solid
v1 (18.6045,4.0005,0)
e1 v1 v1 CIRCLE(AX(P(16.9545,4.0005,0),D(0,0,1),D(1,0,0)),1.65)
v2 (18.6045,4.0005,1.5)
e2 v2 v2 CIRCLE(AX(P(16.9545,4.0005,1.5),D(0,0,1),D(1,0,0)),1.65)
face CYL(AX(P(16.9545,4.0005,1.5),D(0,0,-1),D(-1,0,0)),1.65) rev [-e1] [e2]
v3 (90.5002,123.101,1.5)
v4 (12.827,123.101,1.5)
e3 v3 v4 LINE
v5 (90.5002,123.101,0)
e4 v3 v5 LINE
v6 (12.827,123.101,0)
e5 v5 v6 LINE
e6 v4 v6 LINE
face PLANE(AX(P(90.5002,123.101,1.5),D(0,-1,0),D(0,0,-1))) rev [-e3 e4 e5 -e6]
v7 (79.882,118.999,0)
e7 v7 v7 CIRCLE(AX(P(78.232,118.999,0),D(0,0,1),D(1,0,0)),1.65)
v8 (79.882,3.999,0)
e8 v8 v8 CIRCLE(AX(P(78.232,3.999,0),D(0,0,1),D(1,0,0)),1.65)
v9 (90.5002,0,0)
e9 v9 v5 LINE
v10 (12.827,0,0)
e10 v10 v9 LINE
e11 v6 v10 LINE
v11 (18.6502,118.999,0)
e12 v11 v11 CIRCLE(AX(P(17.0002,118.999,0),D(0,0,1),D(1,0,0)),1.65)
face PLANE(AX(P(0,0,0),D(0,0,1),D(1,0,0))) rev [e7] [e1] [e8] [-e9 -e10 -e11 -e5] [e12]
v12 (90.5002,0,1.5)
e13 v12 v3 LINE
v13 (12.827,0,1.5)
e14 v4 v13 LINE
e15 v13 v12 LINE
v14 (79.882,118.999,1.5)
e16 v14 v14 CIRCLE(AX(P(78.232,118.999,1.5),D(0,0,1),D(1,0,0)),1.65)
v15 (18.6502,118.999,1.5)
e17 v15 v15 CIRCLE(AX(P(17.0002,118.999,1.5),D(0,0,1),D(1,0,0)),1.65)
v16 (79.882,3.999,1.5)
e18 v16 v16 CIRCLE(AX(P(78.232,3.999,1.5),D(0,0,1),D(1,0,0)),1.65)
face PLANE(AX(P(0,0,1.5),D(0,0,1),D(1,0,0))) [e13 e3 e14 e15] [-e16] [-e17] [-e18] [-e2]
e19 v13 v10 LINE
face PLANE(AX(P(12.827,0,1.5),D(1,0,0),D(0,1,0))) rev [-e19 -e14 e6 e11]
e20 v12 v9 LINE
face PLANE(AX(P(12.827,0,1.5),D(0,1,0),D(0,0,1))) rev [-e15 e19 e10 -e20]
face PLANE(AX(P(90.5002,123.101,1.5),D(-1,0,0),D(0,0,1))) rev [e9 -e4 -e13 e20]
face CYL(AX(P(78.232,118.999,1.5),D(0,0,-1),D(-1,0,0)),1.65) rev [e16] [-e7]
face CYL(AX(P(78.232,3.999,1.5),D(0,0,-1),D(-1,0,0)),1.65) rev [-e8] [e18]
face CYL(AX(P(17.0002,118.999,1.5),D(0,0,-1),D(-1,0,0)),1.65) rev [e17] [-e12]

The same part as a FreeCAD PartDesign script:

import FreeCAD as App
import Part
import Sketcher

V = App.Vector

doc = App.newDocument("Part")
body = doc.addObject("PartDesign::Body", "Body")

# Sketch on XY plane
sketch1 = body.newObject("Sketcher::SketchObject", "Sketch")
sketch1.AttachmentSupport = (doc.getObject("XY_Plane"), [""])
sketch1.MapMode = "FlatFace"
sketch1.addGeometry([
    Part.LineSegment(V(90.5, 0, 0), V(90.5, 123.1, 0)),  # 0
    Part.LineSegment(V(90.5, 123.1, 0), V(12.8, 123.1, 0)),  # 1
    Part.LineSegment(V(12.8, 123.1, 0), V(12.8, 0, 0)),  # 2
    Part.LineSegment(V(12.8, 0, 0), V(90.5, 0, 0)),  # 3
    Part.Circle(V(78.2, 4, 0), V(0, 0, 1), 1.6),  # 4
    Part.Circle(V(17, 4, 0), V(0, 0, 1), 1.6),  # 5
    Part.Circle(V(78.2, 119, 0), V(0, 0, 1), 1.6),  # 6
    Part.Circle(V(17, 119, 0), V(0, 0, 1), 1.6),  # 7
], False)
sketch1.addConstraint([
    Sketcher.Constraint("Coincident", 0, 2, 1, 1),
    Sketcher.Constraint("Coincident", 1, 2, 2, 1),
    Sketcher.Constraint("Coincident", 2, 2, 3, 1),
    Sketcher.Constraint("Coincident", 3, 2, 0, 1),
    Sketcher.Constraint("Vertical", 0),
    Sketcher.Constraint("Horizontal", 1),
    Sketcher.Constraint("Vertical", 2),
    Sketcher.Constraint("Horizontal", 3),
    Sketcher.Constraint("Equal", 4, 5),
    Sketcher.Constraint("Equal", 5, 6),
    Sketcher.Constraint("Equal", 6, 7),
    Sketcher.Constraint("PointOnObject", 2, 2, -1),
    Sketcher.Constraint("Horizontal", 6, 3, 7, 3),
    Sketcher.Constraint("Vertical", 4, 3, 6, 3),
    Sketcher.Constraint("Diameter", 4, 3.3),
    Sketcher.Constraint("DistanceY", 4, 3, 6, 3, 115.0),
    Sketcher.Constraint("DistanceX", 7, 3, 0, 2, 73.5),
    Sketcher.Constraint("DistanceY", 0, 1, 0, 2, 123.101),
    Sketcher.Constraint("DistanceX", 1, 2, 1, 1, 77.6732),
    Sketcher.Constraint("DistanceX", -1, 1, 4, 3, 78.232),
    Sketcher.Constraint("DistanceY", -1, 1, 4, 3, 3.999),
    Sketcher.Constraint("DistanceX", -1, 1, 1, 2, 12.827),
    Sketcher.Constraint("DistanceX", -1, 1, 5, 3, 16.9545),
    Sketcher.Constraint("DistanceY", -1, 1, 5, 3, 4.0005),
])
pad1 = body.newObject("PartDesign::Pad", "Pad")
pad1.Profile = sketch1
pad1.Length = 1.5

doc.recompute()
